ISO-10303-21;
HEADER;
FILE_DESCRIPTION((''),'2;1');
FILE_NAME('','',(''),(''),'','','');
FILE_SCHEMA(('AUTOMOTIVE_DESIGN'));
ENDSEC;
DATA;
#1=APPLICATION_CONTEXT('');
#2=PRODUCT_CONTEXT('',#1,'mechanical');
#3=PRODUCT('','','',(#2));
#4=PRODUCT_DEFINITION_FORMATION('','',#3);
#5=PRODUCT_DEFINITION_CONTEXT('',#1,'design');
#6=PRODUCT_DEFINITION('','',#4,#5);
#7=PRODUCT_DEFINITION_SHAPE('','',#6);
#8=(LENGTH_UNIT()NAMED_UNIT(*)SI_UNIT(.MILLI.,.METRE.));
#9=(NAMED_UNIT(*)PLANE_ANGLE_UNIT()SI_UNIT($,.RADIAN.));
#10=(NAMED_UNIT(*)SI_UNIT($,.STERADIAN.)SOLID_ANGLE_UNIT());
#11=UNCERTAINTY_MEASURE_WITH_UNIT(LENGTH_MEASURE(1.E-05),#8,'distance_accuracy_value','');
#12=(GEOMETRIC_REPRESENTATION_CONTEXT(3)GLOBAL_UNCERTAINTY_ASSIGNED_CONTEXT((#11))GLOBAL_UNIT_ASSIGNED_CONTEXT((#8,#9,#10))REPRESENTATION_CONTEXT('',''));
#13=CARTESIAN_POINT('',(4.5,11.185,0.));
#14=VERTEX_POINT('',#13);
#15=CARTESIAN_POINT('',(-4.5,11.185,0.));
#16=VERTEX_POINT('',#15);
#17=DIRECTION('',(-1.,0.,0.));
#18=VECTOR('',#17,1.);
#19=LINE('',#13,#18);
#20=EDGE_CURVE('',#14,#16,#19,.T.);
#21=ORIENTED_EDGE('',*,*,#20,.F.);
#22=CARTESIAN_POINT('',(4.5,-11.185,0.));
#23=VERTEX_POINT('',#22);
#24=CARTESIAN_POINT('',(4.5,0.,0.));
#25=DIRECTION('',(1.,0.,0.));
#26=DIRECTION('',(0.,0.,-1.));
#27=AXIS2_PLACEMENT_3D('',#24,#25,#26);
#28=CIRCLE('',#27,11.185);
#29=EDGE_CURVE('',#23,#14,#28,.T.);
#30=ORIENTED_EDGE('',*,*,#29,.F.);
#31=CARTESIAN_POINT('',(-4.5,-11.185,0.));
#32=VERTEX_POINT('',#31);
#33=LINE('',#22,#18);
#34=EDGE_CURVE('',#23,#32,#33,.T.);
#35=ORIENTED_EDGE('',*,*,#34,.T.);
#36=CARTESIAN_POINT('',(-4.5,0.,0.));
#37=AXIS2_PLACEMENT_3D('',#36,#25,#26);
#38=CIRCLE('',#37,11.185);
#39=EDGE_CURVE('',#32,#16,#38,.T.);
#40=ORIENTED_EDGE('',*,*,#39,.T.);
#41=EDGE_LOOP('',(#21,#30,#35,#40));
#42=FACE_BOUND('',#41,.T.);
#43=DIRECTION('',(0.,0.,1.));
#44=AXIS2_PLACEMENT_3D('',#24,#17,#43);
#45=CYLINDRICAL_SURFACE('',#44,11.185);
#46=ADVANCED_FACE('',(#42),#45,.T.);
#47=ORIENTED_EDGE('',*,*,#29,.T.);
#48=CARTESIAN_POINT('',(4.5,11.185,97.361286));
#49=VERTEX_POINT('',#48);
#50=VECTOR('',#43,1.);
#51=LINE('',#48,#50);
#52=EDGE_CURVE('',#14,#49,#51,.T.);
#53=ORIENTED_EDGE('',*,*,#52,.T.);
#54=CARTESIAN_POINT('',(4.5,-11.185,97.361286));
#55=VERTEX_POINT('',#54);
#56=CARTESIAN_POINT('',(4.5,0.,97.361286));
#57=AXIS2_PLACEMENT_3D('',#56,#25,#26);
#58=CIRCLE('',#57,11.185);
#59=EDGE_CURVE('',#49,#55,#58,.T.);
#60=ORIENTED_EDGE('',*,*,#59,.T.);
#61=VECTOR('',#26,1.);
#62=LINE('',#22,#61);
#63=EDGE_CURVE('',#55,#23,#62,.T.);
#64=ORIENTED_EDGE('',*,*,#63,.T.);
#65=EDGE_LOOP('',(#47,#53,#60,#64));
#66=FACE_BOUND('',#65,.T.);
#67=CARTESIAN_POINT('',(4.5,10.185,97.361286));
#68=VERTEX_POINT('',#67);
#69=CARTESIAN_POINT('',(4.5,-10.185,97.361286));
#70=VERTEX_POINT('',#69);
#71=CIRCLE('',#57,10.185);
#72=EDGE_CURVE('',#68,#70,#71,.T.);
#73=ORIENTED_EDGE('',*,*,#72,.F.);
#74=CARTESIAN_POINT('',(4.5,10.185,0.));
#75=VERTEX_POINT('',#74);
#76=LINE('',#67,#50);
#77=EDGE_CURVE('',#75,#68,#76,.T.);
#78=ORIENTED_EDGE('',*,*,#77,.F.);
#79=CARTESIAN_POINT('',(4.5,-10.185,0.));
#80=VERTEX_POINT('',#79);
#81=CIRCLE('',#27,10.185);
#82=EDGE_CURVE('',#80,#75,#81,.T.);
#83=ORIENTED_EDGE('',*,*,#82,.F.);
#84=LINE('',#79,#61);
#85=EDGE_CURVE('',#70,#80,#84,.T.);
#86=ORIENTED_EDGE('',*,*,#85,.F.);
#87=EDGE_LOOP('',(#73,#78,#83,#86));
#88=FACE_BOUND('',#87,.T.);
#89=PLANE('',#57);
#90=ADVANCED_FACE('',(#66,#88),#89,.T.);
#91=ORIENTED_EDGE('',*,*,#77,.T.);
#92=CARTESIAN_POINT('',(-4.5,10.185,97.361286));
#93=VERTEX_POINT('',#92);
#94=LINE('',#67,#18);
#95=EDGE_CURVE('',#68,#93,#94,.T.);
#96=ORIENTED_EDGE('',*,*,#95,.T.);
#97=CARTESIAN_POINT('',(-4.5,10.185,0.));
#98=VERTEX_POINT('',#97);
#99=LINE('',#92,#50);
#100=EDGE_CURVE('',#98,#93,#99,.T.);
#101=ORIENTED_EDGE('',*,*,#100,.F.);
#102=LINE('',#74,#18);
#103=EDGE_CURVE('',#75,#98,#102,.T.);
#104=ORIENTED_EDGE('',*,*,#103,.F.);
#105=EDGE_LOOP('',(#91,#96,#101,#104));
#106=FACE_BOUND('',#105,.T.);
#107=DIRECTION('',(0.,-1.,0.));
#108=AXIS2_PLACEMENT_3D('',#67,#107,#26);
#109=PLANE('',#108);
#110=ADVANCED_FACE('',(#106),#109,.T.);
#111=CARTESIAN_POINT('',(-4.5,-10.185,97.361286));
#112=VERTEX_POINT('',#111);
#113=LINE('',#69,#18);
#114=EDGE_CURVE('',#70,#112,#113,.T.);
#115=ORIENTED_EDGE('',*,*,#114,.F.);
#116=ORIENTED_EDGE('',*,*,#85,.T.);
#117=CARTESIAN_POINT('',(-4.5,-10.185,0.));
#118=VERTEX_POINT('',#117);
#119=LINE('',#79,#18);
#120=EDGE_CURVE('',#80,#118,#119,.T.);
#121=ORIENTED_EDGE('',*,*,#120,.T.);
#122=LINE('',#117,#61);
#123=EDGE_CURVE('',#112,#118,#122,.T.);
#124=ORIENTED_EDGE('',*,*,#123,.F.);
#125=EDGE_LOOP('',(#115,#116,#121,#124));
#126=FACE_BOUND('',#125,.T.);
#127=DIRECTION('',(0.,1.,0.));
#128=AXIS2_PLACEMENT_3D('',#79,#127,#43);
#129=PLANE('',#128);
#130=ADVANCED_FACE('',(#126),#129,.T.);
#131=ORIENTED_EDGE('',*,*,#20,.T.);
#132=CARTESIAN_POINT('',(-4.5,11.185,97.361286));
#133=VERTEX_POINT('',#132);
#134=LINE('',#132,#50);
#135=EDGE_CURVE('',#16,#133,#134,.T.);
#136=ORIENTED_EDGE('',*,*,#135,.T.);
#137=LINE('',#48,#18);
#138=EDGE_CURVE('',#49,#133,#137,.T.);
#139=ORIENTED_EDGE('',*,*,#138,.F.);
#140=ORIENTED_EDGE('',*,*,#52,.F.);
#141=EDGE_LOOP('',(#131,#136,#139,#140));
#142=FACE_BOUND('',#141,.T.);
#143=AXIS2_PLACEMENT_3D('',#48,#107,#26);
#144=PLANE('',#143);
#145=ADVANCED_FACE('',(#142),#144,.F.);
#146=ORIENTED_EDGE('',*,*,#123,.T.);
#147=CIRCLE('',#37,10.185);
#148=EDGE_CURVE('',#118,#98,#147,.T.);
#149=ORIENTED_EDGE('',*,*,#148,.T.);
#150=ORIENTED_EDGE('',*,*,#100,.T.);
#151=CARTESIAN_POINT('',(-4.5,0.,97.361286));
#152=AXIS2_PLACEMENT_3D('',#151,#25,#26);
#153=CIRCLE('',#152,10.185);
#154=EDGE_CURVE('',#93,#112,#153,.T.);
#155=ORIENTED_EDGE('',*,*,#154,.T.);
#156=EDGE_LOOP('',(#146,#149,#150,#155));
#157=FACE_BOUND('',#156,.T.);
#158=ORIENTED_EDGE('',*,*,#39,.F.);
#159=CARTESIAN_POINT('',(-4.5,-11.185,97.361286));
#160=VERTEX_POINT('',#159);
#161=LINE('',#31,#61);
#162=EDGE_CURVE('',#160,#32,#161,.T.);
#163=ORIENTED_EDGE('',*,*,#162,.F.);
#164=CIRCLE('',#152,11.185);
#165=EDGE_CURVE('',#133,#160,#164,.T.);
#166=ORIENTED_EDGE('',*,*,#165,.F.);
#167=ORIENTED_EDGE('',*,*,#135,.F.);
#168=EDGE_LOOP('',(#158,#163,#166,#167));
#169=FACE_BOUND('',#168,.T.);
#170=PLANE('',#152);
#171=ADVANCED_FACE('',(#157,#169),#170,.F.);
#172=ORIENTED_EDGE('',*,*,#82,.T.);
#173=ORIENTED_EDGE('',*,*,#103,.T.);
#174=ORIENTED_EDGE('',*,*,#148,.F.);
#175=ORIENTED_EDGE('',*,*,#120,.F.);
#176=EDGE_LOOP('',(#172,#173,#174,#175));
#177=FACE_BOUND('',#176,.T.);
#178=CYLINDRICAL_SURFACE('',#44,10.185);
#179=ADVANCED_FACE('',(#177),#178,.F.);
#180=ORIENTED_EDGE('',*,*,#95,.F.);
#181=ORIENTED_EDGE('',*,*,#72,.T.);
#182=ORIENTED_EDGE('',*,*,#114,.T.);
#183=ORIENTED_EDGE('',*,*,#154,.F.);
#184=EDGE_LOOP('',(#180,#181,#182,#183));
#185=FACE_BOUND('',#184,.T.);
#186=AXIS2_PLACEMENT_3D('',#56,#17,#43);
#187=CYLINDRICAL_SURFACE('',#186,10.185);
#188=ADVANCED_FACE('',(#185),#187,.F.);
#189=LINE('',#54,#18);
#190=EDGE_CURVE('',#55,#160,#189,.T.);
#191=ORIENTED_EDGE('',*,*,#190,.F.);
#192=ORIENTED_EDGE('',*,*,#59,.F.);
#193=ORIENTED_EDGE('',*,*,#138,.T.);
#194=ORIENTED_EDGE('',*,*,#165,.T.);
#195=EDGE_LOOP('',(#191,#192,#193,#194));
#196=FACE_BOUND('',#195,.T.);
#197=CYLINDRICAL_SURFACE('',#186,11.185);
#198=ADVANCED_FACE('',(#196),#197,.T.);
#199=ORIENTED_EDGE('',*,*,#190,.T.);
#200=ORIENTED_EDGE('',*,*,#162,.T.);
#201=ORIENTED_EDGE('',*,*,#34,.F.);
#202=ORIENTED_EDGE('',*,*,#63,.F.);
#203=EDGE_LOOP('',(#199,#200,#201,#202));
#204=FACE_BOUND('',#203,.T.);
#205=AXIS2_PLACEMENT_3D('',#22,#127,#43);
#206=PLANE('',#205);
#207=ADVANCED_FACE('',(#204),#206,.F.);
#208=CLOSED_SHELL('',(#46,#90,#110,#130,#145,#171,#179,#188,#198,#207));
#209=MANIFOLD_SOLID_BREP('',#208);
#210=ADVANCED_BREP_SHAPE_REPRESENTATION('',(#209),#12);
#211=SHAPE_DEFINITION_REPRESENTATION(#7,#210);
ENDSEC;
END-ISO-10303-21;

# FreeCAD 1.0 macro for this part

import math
import FreeCAD as App
import Part
import Sketcher

V = App.Vector

doc = App.newDocument("Part")
body = doc.addObject("PartDesign::Body", "Body")

sketch1 = body.newObject("Sketcher::SketchObject", "Sketch")
sketch1.AttachmentSupport = (doc.getObject("YZ_Plane"), [""])
sketch1.MapMode = "FlatFace"
sketch1.addGeometry(Part.LineSegment(V(11.185, 0, 0), V(11.185, 97.361286, 0)), False)
sketch1.addGeometry(Part.ArcOfCircle(Part.Circle(V(0, 97.361286, 0), V(0, 0, 1), 11.185), math.radians(0), math.radians(180)), False)
sketch1.addGeometry(Part.LineSegment(V(-11.185, 97.361286, 0), V(-11.185, 0, 0)), False)
sketch1.addGeometry(Part.ArcOfCircle(Part.Circle(V(0, 0, 0), V(0, 0, 1), 11.185), math.radians(180), math.radians(360)), False)
sketch1.addGeometry(Part.LineSegment(V(10.185, 97.361286, 0), V(10.185, 0, 0)), False)
sketch1.addGeometry(Part.ArcOfCircle(Part.Circle(V(0, 0, 0), V(0, 0, 1), 10.185), math.radians(180), math.radians(360)), False)
sketch1.addGeometry(Part.LineSegment(V(-10.185, 0, 0), V(-10.185, 97.361286, 0)), False)
sketch1.addGeometry(Part.ArcOfCircle(Part.Circle(V(0, 97.361286, 0), V(0, 0, 1), 10.185), math.radians(0), math.radians(180)), False)
sketch1.addConstraint(Sketcher.Constraint("Tangent", 0, 2, 1, 1))
sketch1.addConstraint(Sketcher.Constraint("Tangent", 1, 2, 2, 1))
sketch1.addConstraint(Sketcher.Constraint("Tangent", 2, 2, 3, 1))
sketch1.addConstraint(Sketcher.Constraint("Tangent", 3, 2, 0, 1))
sketch1.addConstraint(Sketcher.Constraint("Tangent", 4, 2, 5, 2))
sketch1.addConstraint(Sketcher.Constraint("Tangent", 5, 1, 6, 1))
sketch1.addConstraint(Sketcher.Constraint("Tangent", 6, 2, 7, 2))
sketch1.addConstraint(Sketcher.Constraint("Tangent", 7, 1, 4, 1))
sketch1.addConstraint(Sketcher.Constraint("Vertical", 0))
sketch1.addConstraint(Sketcher.Constraint("Vertical", 2))
sketch1.addConstraint(Sketcher.Constraint("Vertical", 4))
sketch1.addConstraint(Sketcher.Constraint("Vertical", 6))
sketch1.addConstraint(Sketcher.Constraint("Coincident", 3, 3, -1, 1))
sketch1.addConstraint(Sketcher.Constraint("Coincident", 5, 3, -1, 1))
sketch1.addConstraint(Sketcher.Constraint("Horizontal", 7, 3, 0, 2))
sketch1.addConstraint(Sketcher.Constraint("Radius", 1, 11.185))
sketch1.addConstraint(Sketcher.Constraint("Radius", 5, 10.185))
sketch1.addConstraint(Sketcher.Constraint("DistanceY", 0, 1, 0, 2, 97.361286))
pad1 = body.newObject("PartDesign::Pad", "Pad")
pad1.Profile = sketch1
pad1.Length = 9
pad1.Midplane = True

doc.recompute()
